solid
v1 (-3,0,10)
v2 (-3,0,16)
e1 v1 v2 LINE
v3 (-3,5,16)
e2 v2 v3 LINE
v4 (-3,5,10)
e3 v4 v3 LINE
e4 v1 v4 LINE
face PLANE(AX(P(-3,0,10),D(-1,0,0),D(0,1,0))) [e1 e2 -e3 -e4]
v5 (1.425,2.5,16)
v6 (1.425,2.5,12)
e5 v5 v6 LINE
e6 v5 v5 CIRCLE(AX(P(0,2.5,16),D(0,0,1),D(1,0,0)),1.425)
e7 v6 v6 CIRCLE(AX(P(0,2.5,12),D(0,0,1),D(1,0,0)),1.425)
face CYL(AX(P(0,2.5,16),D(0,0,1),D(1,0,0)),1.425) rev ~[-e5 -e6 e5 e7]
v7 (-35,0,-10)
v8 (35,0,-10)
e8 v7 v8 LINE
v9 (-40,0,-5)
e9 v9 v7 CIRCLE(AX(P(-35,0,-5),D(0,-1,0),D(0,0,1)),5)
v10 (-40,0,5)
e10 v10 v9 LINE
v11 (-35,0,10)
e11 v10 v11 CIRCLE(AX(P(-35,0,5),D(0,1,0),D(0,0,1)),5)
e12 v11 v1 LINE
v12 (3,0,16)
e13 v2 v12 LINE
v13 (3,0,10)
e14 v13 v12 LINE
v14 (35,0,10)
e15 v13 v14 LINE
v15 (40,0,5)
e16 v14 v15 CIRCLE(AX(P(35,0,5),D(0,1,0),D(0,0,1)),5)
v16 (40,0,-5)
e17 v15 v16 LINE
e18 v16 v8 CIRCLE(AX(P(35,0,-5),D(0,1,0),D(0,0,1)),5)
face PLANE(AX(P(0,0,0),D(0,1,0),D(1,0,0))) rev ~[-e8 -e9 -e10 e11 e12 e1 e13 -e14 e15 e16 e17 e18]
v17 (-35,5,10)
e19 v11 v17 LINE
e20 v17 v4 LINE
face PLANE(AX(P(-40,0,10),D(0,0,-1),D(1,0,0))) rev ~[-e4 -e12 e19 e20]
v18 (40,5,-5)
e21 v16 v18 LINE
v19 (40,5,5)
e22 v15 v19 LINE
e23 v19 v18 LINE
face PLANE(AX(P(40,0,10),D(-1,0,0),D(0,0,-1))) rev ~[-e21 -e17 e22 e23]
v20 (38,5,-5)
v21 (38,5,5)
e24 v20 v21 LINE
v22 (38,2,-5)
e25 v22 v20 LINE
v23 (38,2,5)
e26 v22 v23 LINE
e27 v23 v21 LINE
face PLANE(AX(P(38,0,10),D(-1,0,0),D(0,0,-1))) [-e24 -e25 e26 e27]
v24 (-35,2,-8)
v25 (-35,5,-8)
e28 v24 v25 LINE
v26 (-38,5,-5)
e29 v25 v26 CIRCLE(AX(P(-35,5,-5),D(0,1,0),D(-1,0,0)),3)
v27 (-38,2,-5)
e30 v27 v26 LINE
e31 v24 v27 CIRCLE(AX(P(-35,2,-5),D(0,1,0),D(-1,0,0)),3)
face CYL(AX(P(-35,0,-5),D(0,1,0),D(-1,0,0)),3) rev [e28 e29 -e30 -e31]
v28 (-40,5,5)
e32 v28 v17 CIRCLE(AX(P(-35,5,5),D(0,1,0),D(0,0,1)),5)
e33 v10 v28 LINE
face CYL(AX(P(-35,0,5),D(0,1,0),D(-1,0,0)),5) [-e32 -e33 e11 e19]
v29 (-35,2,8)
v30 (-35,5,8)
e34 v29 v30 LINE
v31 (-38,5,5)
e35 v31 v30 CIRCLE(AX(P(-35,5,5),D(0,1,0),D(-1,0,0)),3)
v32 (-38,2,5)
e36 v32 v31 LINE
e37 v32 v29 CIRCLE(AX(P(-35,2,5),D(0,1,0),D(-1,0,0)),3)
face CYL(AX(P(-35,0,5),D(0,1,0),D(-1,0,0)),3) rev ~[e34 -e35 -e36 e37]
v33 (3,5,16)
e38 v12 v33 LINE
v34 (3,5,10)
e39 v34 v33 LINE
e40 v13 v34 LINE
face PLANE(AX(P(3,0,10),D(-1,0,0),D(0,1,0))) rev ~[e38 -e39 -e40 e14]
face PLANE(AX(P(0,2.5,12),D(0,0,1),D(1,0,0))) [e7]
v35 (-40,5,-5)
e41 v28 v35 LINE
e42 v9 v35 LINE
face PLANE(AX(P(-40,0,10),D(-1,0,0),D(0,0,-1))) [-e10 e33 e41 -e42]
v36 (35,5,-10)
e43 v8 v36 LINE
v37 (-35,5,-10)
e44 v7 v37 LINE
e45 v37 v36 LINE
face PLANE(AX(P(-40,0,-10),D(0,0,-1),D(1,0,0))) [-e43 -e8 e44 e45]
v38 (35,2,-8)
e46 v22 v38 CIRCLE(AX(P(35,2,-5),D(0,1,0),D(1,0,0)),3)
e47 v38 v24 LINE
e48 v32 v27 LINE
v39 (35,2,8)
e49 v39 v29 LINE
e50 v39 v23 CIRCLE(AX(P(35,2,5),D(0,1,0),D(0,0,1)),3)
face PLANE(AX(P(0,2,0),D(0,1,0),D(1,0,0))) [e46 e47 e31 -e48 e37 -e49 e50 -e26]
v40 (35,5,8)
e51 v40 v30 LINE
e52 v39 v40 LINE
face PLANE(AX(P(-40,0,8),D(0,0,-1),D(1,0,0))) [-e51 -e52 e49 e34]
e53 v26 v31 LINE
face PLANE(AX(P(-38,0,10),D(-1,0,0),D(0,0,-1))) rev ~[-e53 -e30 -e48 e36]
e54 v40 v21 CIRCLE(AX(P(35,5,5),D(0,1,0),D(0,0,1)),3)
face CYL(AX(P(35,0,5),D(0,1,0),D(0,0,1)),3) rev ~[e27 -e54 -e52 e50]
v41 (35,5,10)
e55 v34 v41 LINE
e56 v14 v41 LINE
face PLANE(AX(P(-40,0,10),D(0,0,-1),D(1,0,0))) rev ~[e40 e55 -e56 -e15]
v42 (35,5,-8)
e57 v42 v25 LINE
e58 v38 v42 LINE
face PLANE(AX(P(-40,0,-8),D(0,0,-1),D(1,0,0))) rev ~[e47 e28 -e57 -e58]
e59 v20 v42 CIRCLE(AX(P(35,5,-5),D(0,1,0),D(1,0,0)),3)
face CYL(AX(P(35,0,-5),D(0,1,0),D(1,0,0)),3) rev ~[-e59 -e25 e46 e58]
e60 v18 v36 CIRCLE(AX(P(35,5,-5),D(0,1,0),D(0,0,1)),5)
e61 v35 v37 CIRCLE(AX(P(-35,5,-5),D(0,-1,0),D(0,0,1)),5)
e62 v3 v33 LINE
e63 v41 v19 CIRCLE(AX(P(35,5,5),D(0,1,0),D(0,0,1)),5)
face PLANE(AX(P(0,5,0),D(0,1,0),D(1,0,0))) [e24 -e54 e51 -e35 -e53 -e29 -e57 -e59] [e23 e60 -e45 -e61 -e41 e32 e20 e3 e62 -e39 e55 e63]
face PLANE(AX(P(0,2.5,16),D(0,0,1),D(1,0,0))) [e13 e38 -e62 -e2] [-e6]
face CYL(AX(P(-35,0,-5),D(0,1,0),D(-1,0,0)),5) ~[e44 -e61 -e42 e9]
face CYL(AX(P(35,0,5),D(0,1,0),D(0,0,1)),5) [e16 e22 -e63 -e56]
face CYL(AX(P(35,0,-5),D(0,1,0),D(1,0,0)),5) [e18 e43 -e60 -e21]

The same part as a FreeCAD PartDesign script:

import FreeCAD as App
import Part
import Sketcher

V = App.Vector
Q = App.Units.Quantity


def edges_at(feature, points):
    """Names of the edges that pass closest to the given points."""
    edges = feature.Shape.Edges
    near = lambda p: min(range(len(edges)), key=lambda i: edges[i].distToShape(Part.Vertex(*p))[0])
    return sorted({f"Edge{near(p) + 1}" for p in points})


def faces_at(feature, points):
    """Names of the faces that lie closest to the given points."""
    faces = feature.Shape.Faces
    near = lambda p: min(range(len(faces)), key=lambda i: faces[i].distToShape(Part.Vertex(*p))[0])
    return sorted({f"Face{near(p) + 1}" for p in points})


def add_polygon(sketch, points):
    """Adds a closed chain of lines whose ends are joined by coincident constraints."""
    first, n = sketch.GeometryCount, len(points)
    for a, b in zip(points, points[1:] + points[:1]):
        sketch.addGeometry(Part.LineSegment(App.Vector(*a, 0), App.Vector(*b, 0)), False)
    for i in range(n):
        sketch.addConstraint(Sketcher.Constraint("Coincident", first + i, 2, first + (i + 1) % n, 1))

doc = App.newDocument("Part")
params = doc.addObject("Spreadsheet::Sheet", "Params")
for row, (alias, value) in enumerate([
    ("sketch1_width", "80 mm"),
    ("sketch1_height", "20 mm"),
    ("pad1_length", "5 mm"),
    ("fillet_radius", "5 mm"),
    ("thickness_wall", "2 mm"),
    ("sketch2_width", "6 mm"),
    ("sketch2_height", "5 mm"),
    ("pad2_length", "6 mm"),
    ("sketch3_diameter", "2.85 mm"),
    ("pocket1_length", "4 mm"),
], start=1):
    params.set(f"A{row}", alias)
    params.set(f"B{row}", "=" + value)
    params.setAlias(f"B{row}", alias)

body = doc.addObject("PartDesign::Body", "Body")

# Sketch on XZ plane
sketch1 = doc.addObject("Sketcher::SketchObject", "Sketch")
body.addObject(sketch1)
sketch1.AttachmentSupport = (doc.XZ_Plane, [""])
sketch1.MapMode = "FlatFace"
add_polygon(sketch1, [(-40, -10), (-40, 10), (40, 10), (40, -10)])  # lines 0-3
sketch1.addConstraint([
    Sketcher.Constraint("Vertical", 0),
    Sketcher.Constraint("Horizontal", 1),
    Sketcher.Constraint("Vertical", 2),
    Sketcher.Constraint("Horizontal", 3),
    Sketcher.Constraint("Symmetric", 0, 2, 2, 2, -1, 1),
    Sketcher.Constraint("DistanceX", 1, 1, 1, 2, Q("80 mm")),
    Sketcher.Constraint("DistanceY", 0, 1, 0, 2, Q("20 mm")),
])
sketch1.setExpression("Constraints[9]", "Params.sketch1_width")
sketch1.setExpression("Constraints[10]", "Params.sketch1_height")
pad1 = doc.addObject("PartDesign::Pad", "Pad")
body.addObject(pad1)
pad1.Profile = sketch1
pad1.setExpression("Length", "Params.pad1_length")
pad1.Reversed = True
doc.recompute()

fillet = doc.addObject("PartDesign::Fillet", "Fillet")
body.addObject(fillet)
fillet.Base = (pad1, edges_at(pad1, [
    (-40, 2.5, -10),
    (40, 2.5, -10),
    (40, 2.5, 10),
    (-40, 2.5, 10),
]))
fillet.setExpression("Radius", "Params.fillet_radius")
doc.recompute()

thickness = doc.addObject("PartDesign::Thickness", "Thickness")
body.addObject(thickness)
thickness.Base = (fillet, faces_at(fillet, [(0, 5, 0)]))
thickness.setExpression("Value", "Params.thickness_wall")
thickness.Reversed = True
thickness.Join = "Intersection"

# Sketch on XY plane
sketch2 = doc.addObject("Sketcher::SketchObject", "Sketch001")
body.addObject(sketch2)
sketch2.AttachmentSupport = (doc.XY_Plane, [""])
sketch2.MapMode = "FlatFace"
sketch2.AttachmentOffset = App.Placement(V(0, 0, 10), App.Rotation())
add_polygon(sketch2, [(-3, 5), (-3, 0), (3, 0), (3, 5)])  # lines 0-3
sketch2.addConstraint([
    Sketcher.Constraint("Vertical", 0),
    Sketcher.Constraint("Horizontal", 1),
    Sketcher.Constraint("Vertical", 2),
    Sketcher.Constraint("Horizontal", 3),
    Sketcher.Constraint("Symmetric", 0, 2, 1, 2, -1, 1),
    Sketcher.Constraint("DistanceX", 1, 1, 1, 2, Q("6 mm")),
    Sketcher.Constraint("DistanceY", 0, 2, 0, 1, Q("5 mm")),
])
sketch2.setExpression("Constraints[9]", "Params.sketch2_width")
sketch2.setExpression("Constraints[10]", "Params.sketch2_height")
pad2 = doc.addObject("PartDesign::Pad", "Pad001")
body.addObject(pad2)
pad2.Profile = sketch2
pad2.setExpression("Length", "Params.pad2_length")

# Sketch on XY plane
sketch3 = doc.addObject("Sketcher::SketchObject", "Sketch002")
body.addObject(sketch3)
sketch3.AttachmentSupport = (doc.XY_Plane, [""])
sketch3.MapMode = "FlatFace"
sketch3.AttachmentOffset = App.Placement(V(0, 0, 16), App.Rotation())
sketch3.addGeometry(Part.Circle(V(0, 2.5, 0), V(0, 0, 1), 1.425), False)
sketch3.addConstraint([
    Sketcher.Constraint("PointOnObject", 0, 3, -2),
    Sketcher.Constraint("Diameter", 0, Q("2.85 mm")),
    Sketcher.Constraint("DistanceY", -1, 1, 0, 3, Q("2.5 mm")),
])
sketch3.setExpression("Constraints[1]", "Params.sketch3_diameter")
pocket1 = doc.addObject("PartDesign::Pocket", "Pocket")
body.addObject(pocket1)
pocket1.Profile = sketch3
pocket1.setExpression("Length", "Params.pocket1_length")

doc.recompute()
